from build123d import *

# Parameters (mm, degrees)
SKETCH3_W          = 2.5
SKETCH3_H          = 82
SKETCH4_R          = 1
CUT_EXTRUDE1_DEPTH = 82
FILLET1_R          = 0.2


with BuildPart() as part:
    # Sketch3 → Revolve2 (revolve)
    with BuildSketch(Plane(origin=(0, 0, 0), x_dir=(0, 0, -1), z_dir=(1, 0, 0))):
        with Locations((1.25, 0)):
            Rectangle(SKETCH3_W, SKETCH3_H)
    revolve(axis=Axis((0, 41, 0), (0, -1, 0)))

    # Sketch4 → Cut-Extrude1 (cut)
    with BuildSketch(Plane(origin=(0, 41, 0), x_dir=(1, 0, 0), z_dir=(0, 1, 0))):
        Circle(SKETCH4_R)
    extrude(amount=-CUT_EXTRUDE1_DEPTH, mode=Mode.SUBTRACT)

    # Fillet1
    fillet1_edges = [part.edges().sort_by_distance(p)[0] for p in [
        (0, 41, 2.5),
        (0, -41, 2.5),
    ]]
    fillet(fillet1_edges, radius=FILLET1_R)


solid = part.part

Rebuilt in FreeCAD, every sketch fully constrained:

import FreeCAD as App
import Part
import Sketcher
from FreeCAD import Vector


def edges_at(feature, points):
    """Names of the edges that pass closest to the given points."""
    edges = feature.Shape.Edges
    near = lambda p: min(range(len(edges)), key=lambda i: edges[i].distToShape(Part.Vertex(*p))[0])
    return sorted({f"Edge{near(p) + 1}" for p in points})

doc = App.newDocument("Part")
params = doc.addObject("Spreadsheet::Sheet", "Params")
for row, (alias, value) in enumerate([
    ("sketch1_width", "82 mm"),
    ("sketch1_height", "2.5 mm"),
    ("revolution_angle", "360 deg"),
    ("sketch2_diameter", "2 mm"),
    ("pocket1_length", "82 mm"),
    ("fillet_radius", "0.2 mm"),
], start=1):
    params.set(f"A{row}", alias)
    params.set(f"B{row}", "=" + value)
    params.setAlias(f"B{row}", alias)

body = doc.addObject("PartDesign::Body", "Body")

sketch1 = body.newObject("Sketcher::SketchObject", "Sketch")
sketch1.AttachmentSupport = (doc.getObject("YZ_Plane"), [""])
sketch1.MapMode = "FlatFace"
sketch1.addGeometry([
    Part.LineSegment(Vector(41, 0, 0), Vector(-41, 0, 0)),
    Part.LineSegment(Vector(-41, 0, 0), Vector(-41, -2.5, 0)),
    Part.LineSegment(Vector(-41, -2.5, 0), Vector(41, -2.5, 0)),
    Part.LineSegment(Vector(41, -2.5, 0), Vector(41, 0, 0)),
], False)
sketch1.addConstraint([
    Sketcher.Constraint("Coincident", 0, 2, 1, 1),
    Sketcher.Constraint("Coincident", 1, 2, 2, 1),
    Sketcher.Constraint("Coincident", 2, 2, 3, 1),
    Sketcher.Constraint("Coincident", 3, 2, 0, 1),
    Sketcher.Constraint("Horizontal", 0),
    Sketcher.Constraint("Vertical", 1),
    Sketcher.Constraint("Horizontal", 2),
    Sketcher.Constraint("Vertical", 3),
    Sketcher.Constraint("Symmetric", 0, 2, 3, 2, -1, 1),
    Sketcher.Constraint("DistanceX", 0, 2, 0, 1, 82.0),
    Sketcher.Constraint("DistanceY", 1, 2, 1, 1, 2.5),
])
sketch1.setExpression("Constraints[9]", "Params.sketch1_width")
sketch1.setExpression("Constraints[10]", "Params.sketch1_height")
revolution = body.newObject("PartDesign::Revolution", "Revolution")
revolution.Profile = sketch1
revolution.ReferenceAxis = (sketch1, ["H_Axis"])
revolution.setExpression("Angle", "Params.revolution_angle")

sketch2 = body.newObject("Sketcher::SketchObject", "Sketch001")
sketch2.AttachmentSupport = (doc.getObject("XZ_Plane"), [""])
sketch2.MapMode = "FlatFace"
sketch2.AttachmentOffset = App.Placement(Vector(0, 0, -41), App.Rotation())
sketch2.addGeometry(Part.Circle(Vector(0, 0, 0), Vector(0, 0, 1), 1), False)
sketch2.addConstraint([
    Sketcher.Constraint("Coincident", 0, 3, -1, 1),
    Sketcher.Constraint("Diameter", 0, 2.0),
])
sketch2.setExpression("Constraints[1]", "Params.sketch2_diameter")
pocket1 = body.newObject("PartDesign::Pocket", "Pocket")
pocket1.Profile = sketch2
pocket1.setExpression("Length", "Params.pocket1_length")
pocket1.Reversed = True
doc.recompute()

fillet = body.newObject("PartDesign::Fillet", "Fillet")
fillet.Base = (pocket1, edges_at(pocket1, [(0, 41, 2.5), (0, -41, 2.5)]))
fillet.setExpression("Radius", "Params.fillet_radius")

doc.recompute()
